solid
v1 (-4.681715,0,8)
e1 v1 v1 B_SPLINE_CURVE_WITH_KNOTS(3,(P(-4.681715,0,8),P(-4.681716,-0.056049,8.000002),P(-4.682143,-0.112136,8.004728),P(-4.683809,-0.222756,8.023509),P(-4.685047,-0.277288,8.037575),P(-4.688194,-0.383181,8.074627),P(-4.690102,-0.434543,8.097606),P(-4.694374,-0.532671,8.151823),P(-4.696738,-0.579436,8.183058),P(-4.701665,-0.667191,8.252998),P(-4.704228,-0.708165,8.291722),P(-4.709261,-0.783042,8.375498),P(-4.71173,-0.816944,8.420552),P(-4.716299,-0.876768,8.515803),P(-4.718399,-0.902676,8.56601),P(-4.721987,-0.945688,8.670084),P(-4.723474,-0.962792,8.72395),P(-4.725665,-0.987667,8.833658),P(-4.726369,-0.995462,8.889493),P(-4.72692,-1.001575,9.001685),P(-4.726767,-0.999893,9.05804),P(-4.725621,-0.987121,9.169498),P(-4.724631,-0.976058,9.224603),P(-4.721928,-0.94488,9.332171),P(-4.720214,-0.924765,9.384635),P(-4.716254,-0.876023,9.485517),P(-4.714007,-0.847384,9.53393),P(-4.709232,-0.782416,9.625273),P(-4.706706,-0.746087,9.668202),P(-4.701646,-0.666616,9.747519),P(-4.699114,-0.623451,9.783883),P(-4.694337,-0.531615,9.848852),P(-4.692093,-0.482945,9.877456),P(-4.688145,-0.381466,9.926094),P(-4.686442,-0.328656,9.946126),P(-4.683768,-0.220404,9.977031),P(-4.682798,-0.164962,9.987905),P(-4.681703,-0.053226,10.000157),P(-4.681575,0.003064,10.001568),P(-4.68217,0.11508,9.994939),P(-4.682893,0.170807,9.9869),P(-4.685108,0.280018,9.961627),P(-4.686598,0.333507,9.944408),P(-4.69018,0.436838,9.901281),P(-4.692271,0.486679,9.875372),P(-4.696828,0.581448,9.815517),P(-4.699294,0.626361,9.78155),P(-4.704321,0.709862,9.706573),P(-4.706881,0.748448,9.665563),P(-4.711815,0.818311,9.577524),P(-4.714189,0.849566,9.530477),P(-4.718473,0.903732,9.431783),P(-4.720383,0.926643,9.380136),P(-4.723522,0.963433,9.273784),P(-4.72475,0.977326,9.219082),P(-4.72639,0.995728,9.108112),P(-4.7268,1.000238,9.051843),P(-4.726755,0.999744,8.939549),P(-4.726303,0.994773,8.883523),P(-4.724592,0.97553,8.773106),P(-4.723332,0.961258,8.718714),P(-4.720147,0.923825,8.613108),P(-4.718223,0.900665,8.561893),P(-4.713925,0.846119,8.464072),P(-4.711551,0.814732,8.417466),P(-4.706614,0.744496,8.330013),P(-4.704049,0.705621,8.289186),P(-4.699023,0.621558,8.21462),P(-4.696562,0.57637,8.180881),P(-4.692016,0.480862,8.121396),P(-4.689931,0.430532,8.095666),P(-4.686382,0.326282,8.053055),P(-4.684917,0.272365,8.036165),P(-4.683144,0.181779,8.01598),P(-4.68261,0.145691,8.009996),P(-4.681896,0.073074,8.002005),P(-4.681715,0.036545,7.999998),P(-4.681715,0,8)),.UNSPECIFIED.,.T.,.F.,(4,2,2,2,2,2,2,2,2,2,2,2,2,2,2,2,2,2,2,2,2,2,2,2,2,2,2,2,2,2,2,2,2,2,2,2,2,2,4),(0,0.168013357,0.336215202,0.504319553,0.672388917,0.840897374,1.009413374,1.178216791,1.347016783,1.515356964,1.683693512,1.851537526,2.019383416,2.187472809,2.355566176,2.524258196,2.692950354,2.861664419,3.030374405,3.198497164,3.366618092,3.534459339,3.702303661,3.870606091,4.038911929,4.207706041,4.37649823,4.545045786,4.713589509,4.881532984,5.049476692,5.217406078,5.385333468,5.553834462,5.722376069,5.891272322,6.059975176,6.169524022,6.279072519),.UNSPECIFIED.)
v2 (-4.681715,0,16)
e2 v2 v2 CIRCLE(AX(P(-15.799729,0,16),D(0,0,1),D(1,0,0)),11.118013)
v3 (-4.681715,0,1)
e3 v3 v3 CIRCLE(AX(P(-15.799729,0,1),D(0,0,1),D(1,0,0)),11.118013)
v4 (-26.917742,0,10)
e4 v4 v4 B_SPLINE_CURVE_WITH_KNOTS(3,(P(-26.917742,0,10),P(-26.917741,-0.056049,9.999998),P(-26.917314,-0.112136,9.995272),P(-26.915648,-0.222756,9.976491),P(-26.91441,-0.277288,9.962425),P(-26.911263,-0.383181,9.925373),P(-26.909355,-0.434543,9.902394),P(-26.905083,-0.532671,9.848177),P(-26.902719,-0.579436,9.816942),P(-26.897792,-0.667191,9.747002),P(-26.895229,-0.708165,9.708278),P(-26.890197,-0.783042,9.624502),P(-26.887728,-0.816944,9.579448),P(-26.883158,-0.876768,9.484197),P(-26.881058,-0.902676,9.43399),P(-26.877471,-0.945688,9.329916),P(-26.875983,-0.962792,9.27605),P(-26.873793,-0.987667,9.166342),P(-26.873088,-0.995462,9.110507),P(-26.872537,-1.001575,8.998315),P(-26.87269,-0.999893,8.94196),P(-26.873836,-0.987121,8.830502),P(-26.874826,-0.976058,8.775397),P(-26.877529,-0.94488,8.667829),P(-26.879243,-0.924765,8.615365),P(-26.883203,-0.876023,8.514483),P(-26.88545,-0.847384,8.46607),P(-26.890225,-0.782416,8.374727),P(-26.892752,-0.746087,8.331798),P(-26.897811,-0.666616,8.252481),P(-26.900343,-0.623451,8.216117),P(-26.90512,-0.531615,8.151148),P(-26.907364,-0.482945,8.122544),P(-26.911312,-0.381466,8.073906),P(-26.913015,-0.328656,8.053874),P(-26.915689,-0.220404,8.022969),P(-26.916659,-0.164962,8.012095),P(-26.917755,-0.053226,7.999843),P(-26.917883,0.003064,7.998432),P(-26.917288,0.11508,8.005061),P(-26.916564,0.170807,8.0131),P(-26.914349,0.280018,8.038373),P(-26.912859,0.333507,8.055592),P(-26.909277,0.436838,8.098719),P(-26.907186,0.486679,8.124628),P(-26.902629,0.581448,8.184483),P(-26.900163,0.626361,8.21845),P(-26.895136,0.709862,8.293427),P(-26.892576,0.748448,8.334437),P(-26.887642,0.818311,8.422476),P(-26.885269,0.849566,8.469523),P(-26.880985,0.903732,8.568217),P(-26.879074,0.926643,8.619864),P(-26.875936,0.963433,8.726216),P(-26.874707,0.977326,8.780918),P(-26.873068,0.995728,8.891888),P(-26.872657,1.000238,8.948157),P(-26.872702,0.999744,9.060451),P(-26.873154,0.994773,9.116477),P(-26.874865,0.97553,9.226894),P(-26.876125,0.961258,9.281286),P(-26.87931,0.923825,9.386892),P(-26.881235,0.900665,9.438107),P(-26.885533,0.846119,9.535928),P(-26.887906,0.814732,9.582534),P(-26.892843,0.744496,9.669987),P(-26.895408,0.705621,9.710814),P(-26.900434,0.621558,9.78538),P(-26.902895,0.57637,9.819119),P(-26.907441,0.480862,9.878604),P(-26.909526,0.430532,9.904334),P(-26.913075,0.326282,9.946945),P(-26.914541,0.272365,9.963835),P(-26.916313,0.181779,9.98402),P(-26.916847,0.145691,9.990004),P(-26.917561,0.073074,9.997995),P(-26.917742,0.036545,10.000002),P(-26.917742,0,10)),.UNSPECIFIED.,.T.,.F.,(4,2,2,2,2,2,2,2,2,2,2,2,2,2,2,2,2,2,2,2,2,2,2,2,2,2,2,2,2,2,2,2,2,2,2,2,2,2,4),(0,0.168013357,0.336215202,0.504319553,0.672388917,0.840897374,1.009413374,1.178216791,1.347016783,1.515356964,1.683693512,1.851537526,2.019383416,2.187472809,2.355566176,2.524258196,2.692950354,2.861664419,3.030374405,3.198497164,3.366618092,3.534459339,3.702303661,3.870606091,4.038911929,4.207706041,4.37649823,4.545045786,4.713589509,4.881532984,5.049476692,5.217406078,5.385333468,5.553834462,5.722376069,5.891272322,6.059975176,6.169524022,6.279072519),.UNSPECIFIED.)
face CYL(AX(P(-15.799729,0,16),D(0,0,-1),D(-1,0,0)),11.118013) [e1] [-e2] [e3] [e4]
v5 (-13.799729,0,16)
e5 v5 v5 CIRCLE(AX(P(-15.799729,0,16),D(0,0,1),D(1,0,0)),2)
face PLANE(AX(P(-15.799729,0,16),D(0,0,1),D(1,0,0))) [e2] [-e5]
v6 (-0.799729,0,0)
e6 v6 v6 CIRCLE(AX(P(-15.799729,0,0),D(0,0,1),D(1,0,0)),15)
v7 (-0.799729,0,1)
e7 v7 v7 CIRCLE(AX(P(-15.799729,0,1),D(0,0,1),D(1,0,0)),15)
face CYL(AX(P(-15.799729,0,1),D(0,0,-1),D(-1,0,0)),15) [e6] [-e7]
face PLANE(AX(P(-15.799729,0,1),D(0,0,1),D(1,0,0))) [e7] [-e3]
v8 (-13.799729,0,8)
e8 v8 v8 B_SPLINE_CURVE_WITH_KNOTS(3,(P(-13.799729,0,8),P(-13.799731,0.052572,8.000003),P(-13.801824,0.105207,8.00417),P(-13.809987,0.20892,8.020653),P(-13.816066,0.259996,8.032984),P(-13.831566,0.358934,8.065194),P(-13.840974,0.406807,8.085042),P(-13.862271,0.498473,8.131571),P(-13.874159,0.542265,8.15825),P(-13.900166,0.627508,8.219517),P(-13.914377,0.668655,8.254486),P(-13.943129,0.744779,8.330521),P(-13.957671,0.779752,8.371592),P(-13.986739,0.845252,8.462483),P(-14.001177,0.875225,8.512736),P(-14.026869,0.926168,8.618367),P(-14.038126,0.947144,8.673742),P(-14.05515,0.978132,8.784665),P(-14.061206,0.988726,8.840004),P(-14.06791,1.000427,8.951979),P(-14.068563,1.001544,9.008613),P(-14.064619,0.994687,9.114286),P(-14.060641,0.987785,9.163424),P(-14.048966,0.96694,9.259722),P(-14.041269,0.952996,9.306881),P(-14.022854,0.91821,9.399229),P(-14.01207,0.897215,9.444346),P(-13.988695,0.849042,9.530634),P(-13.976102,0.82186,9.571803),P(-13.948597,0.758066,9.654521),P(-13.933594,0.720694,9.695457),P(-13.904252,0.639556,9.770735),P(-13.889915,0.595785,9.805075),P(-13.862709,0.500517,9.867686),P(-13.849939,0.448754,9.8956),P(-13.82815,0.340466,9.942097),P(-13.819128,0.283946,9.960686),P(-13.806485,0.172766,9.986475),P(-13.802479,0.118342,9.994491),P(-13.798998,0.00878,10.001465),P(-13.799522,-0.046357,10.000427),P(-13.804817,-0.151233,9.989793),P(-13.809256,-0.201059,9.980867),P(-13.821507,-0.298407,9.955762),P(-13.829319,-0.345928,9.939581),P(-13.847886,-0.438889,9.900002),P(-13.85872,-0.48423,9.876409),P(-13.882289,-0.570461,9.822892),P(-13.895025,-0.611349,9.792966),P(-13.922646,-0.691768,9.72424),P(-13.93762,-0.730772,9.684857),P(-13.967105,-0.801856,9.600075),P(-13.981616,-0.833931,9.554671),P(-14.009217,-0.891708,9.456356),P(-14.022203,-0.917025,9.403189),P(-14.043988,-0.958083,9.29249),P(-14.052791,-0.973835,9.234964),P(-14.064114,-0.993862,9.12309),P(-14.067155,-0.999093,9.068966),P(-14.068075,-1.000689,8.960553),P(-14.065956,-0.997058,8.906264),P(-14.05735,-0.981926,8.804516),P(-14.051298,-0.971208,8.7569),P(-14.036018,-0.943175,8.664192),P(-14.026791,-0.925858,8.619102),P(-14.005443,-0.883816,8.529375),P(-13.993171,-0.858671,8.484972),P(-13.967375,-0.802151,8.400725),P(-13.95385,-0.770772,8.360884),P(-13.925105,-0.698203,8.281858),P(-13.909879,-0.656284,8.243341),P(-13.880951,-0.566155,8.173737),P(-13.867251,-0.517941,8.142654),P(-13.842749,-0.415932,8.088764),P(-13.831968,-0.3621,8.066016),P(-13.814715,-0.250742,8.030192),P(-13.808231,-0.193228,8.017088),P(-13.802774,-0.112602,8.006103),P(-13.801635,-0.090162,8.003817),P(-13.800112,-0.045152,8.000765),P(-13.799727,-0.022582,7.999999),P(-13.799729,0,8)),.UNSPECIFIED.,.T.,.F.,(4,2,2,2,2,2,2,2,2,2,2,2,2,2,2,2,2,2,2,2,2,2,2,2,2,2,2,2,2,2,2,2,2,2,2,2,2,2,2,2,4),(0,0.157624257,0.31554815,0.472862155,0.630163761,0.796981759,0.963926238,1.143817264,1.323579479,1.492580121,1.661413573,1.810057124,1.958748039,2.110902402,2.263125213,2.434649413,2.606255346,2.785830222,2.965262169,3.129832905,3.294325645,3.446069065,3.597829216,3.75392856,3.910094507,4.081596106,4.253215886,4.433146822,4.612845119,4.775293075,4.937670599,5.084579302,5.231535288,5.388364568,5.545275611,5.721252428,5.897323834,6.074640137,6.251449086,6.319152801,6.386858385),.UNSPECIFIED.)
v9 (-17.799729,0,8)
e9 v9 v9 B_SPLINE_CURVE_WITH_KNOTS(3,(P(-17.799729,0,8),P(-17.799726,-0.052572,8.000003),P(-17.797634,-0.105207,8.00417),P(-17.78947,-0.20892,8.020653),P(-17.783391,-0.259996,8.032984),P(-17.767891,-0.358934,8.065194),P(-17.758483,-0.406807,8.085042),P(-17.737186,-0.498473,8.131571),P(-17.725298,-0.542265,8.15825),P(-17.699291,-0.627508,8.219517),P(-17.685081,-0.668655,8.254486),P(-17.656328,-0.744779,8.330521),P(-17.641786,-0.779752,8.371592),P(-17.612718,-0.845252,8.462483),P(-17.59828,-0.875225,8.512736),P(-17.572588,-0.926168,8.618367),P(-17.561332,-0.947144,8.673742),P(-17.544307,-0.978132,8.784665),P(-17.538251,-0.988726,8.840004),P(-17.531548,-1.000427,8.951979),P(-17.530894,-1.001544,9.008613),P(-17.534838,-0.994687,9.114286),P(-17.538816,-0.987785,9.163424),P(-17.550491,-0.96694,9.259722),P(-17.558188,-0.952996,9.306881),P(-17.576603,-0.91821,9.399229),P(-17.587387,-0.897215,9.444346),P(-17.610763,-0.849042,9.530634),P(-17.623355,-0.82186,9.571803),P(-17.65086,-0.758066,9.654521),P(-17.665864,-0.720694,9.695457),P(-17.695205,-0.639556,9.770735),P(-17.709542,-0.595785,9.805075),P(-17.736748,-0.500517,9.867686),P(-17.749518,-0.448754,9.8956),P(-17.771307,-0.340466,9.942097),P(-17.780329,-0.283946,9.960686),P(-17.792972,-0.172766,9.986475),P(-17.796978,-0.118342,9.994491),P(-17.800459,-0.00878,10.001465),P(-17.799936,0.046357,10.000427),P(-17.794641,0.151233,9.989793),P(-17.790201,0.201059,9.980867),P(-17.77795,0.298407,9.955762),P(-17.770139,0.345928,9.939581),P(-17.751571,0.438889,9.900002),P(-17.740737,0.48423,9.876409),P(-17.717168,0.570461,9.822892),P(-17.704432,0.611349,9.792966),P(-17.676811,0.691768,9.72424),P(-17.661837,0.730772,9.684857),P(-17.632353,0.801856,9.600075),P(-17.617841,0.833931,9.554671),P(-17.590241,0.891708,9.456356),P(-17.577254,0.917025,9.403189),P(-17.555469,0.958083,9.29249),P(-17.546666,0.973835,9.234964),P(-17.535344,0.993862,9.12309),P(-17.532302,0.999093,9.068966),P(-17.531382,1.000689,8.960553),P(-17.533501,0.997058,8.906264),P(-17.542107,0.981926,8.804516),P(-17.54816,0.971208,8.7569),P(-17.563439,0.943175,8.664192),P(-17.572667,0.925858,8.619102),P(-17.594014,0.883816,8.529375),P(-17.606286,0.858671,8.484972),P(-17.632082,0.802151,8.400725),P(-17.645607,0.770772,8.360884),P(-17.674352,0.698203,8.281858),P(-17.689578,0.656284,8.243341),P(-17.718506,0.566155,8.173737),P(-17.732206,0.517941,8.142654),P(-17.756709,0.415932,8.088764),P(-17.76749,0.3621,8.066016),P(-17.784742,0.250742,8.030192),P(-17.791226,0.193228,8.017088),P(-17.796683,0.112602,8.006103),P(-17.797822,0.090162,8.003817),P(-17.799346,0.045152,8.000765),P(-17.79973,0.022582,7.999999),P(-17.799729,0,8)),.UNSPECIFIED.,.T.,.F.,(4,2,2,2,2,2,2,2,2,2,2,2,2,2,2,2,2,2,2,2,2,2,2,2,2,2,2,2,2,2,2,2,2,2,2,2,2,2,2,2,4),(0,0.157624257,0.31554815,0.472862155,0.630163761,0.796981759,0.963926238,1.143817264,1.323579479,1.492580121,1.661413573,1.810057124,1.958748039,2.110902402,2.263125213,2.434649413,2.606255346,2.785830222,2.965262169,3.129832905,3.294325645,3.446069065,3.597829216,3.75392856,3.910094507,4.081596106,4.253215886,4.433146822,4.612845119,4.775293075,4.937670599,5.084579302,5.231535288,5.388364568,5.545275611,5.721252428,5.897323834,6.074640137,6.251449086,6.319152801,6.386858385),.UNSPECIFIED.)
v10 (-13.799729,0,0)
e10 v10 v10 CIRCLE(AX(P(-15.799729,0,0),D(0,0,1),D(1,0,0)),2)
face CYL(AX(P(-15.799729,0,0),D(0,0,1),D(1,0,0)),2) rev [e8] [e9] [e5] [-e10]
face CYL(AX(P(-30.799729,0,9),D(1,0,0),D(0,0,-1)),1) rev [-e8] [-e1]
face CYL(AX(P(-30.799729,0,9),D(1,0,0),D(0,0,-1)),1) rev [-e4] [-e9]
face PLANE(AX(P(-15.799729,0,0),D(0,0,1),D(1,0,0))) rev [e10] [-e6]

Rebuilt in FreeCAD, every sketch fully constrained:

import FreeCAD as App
import Part
import Sketcher

V = App.Vector
Q = App.Units.Quantity

doc = App.newDocument("Part")
body = doc.addObject("PartDesign::Body", "Body")

sketch1 = body.newObject("Sketcher::SketchObject", "Sketch")
sketch1.AttachmentSupport = (doc.getObject("XY_Plane"), [""])
sketch1.MapMode = "FlatFace"
sketch1.addGeometry(Part.Circle(V(-16, 0, 0), V(0, 0, 1), 15), False)
sketch1.addConstraint(Sketcher.Constraint("PointOnObject", 0, 3, -1))
sketch1.addConstraint(Sketcher.Constraint("Diameter", 0, Q("30 mm")))
sketch1.addConstraint(Sketcher.Constraint("DistanceX", 0, 3, -1, 1, Q("15.799729 mm")))
pad1 = body.newObject("PartDesign::Pad", "Pad")
pad1.Profile = sketch1
pad1.Length = 1

sketch2 = body.newObject("Sketcher::SketchObject", "Sketch001")
sketch2.AttachmentSupport = (doc.getObject("XY_Plane"), [""])
sketch2.MapMode = "FlatFace"
sketch2.AttachmentOffset = App.Placement(V(0, 0, 1), App.Rotation())
sketch2.addGeometry(Part.Circle(V(-16, 0, 0), V(0, 0, 1), 11), False)
sketch2.addConstraint(Sketcher.Constraint("PointOnObject", 0, 3, -1))
sketch2.addConstraint(Sketcher.Constraint("Diameter", 0, Q("22.236027 mm")))
sketch2.addConstraint(Sketcher.Constraint("DistanceX", 0, 3, -1, 1, Q("15.799729 mm")))
pad2 = body.newObject("PartDesign::Pad", "Pad001")
pad2.Profile = sketch2
pad2.Length = 15

sketch3 = body.newObject("Sketcher::SketchObject", "Sketch002")
sketch3.AttachmentSupport = (doc.getObject("XY_Plane"), [""])
sketch3.MapMode = "FlatFace"
sketch3.AttachmentOffset = App.Placement(V(0, 0, 16), App.Rotation())
sketch3.addGeometry(Part.Circle(V(-15.8, 0, 0), V(0, 0, 1), 2), False)
sketch3.addConstraint(Sketcher.Constraint("PointOnObject", 0, 3, -1))
sketch3.addConstraint(Sketcher.Constraint("Diameter", 0, Q("4 mm")))
sketch3.addConstraint(Sketcher.Constraint("DistanceX", 0, 3, -1, 1, Q("15.799729 mm")))
pocket1 = body.newObject("PartDesign::Pocket", "Pocket")
pocket1.Profile = sketch3
pocket1.Type = "ThroughAll"

sketch4 = body.newObject("Sketcher::SketchObject", "Sketch003")
sketch4.AttachmentSupport = (doc.getObject("YZ_Plane"), [""])
sketch4.MapMode = "FlatFace"
sketch4.addGeometry(Part.Circle(V(0, 9, 0), V(0, 0, 1), 1), False)
sketch4.addConstraint(Sketcher.Constraint("PointOnObject", 0, 3, -2))
sketch4.addConstraint(Sketcher.Constraint("Diameter", 0, Q("2 mm")))
sketch4.addConstraint(Sketcher.Constraint("DistanceY", -1, 1, 0, 3, Q("9 mm")))
pocket2 = body.newObject("PartDesign::Pocket", "Pocket001")
pocket2.Profile = sketch4
pocket2.Type = "ThroughAll"

doc.recompute()
